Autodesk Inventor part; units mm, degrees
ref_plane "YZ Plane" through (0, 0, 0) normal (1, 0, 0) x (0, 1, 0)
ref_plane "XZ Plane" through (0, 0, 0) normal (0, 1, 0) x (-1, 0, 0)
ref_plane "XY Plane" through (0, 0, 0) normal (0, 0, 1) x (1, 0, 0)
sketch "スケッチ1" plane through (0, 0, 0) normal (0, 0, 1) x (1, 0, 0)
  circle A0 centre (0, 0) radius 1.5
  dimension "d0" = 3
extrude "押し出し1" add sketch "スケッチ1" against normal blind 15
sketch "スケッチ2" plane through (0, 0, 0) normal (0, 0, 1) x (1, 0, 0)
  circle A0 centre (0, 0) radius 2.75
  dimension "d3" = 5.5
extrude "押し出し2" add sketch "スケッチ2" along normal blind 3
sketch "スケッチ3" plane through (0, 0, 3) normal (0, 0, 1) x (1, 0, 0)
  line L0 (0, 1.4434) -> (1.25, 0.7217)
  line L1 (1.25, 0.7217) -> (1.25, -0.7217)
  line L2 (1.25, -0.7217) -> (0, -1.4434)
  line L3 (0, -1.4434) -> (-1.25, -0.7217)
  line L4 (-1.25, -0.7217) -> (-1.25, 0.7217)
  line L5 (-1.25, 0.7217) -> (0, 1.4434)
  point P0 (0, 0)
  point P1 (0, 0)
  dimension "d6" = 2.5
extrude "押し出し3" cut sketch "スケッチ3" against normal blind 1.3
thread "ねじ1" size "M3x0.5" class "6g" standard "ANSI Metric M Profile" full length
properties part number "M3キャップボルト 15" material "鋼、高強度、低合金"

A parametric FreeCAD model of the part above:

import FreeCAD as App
import Part
import Sketcher
from FreeCAD import Vector
Q = App.Units.Quantity

doc = App.newDocument("Part")
body = doc.addObject("PartDesign::Body", "Body")

# Sketch on XY plane
sketch1 = body.newObject("Sketcher::SketchObject", "Sketch")
sketch1.AttachmentSupport = (doc.getObject("XY_Plane"), [""])
sketch1.MapMode = "FlatFace"
sketch1.addGeometry(Part.Circle(Vector(0, 0, 0), Vector(0, 0, 1), 1.5), False)
sketch1.addConstraint([
    Sketcher.Constraint("Coincident", 0, 3, -1, 1),
    Sketcher.Constraint("Diameter", 0, Q("3 mm")),
])
pad1 = body.newObject("PartDesign::Pad", "Pad")
pad1.Profile = sketch1
pad1.Length = 15
pad1.Reversed = True

# Sketch on XY plane
sketch2 = body.newObject("Sketcher::SketchObject", "Sketch001")
sketch2.AttachmentSupport = (doc.getObject("XY_Plane"), [""])
sketch2.MapMode = "FlatFace"
sketch2.addGeometry(Part.Circle(Vector(0, 0, 0), Vector(0, 0, 1), 2.75), False)
sketch2.addConstraint([
    Sketcher.Constraint("Coincident", 0, 3, -1, 1),
    Sketcher.Constraint("Diameter", 0, Q("5.5 mm")),
])
pad2 = body.newObject("PartDesign::Pad", "Pad001")
pad2.Profile = sketch2
pad2.Length = 3

# Sketch on XY plane
sketch3 = body.newObject("Sketcher::SketchObject", "Sketch002")
sketch3.AttachmentSupport = (doc.getObject("XY_Plane"), [""])
sketch3.MapMode = "FlatFace"
sketch3.AttachmentOffset = App.Placement(Vector(0, 0, 3), App.Rotation())
sketch3.addGeometry([
    Part.LineSegment(Vector(1.25, 0.7217, 0), Vector(0, 1.4434, 0)),  # 0
    Part.LineSegment(Vector(0, 1.4434, 0), Vector(-1.25, 0.7217, 0)),  # 1
    Part.LineSegment(Vector(-1.25, 0.7217, 0), Vector(-1.25, -0.7217, 0)),  # 2
    Part.LineSegment(Vector(-1.25, -0.7217, 0), Vector(0, -1.4434, 0)),  # 3
    Part.LineSegment(Vector(0, -1.4434, 0), Vector(1.25, -0.7217, 0)),  # 4
    Part.LineSegment(Vector(1.25, -0.7217, 0), Vector(1.25, 0.7217, 0)),  # 5
], False)
sketch3.addConstraint([
    Sketcher.Constraint("Coincident", 0, 2, 1, 1),
    Sketcher.Constraint("Coincident", 1, 2, 2, 1),
    Sketcher.Constraint("Coincident", 2, 2, 3, 1),
    Sketcher.Constraint("Coincident", 3, 2, 4, 1),
    Sketcher.Constraint("Coincident", 4, 2, 5, 1),
    Sketcher.Constraint("Coincident", 5, 2, 0, 1),
    Sketcher.Constraint("Vertical", 2),
    Sketcher.Constraint("Vertical", 5),
    Sketcher.Constraint("Symmetric", 0, 2, 3, 2, -1, 1),
    Sketcher.Constraint("Symmetric", 1, 2, 4, 2, -1, 1),
    Sketcher.Constraint("PointOnObject", 0, 2, -2),
    Sketcher.Constraint("Parallel", 0, 3),
    Sketcher.Constraint("Horizontal", 2, 2, 4, 2),
    Sketcher.Constraint("DistanceX", 2, 2, 4, 2, Q("2.5 mm")),
    Sketcher.Constraint("Angle", 0, Q("149.9996 deg")),
    Sketcher.Constraint("DistanceY", 2, 2, 2, 1, Q("1.4434 mm")),
])
pocket1 = body.newObject("PartDesign::Pocket", "Pocket")
pocket1.Profile = sketch3
pocket1.Length = 1.3

doc.recompute()
